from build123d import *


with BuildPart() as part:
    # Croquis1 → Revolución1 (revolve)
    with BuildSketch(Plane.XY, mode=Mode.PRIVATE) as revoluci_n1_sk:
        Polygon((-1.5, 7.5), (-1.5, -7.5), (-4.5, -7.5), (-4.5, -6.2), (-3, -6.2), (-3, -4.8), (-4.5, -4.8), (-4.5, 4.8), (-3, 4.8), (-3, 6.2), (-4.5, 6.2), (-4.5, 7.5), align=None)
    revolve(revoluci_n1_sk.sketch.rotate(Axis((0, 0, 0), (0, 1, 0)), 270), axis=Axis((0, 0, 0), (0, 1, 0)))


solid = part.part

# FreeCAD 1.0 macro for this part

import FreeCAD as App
import Part
import Sketcher
Q = App.Units.Quantity


def add_polygon(sketch, points):
    """Adds a closed chain of lines whose ends are joined by coincident constraints."""
    first, n = sketch.GeometryCount, len(points)
    for a, b in zip(points, points[1:] + points[:1]):
        sketch.addGeometry(Part.LineSegment(App.Vector(*a, 0), App.Vector(*b, 0)), False)
    for i in range(n):
        sketch.addConstraint(Sketcher.Constraint("Coincident", first + i, 2, first + (i + 1) % n, 1))

doc = App.newDocument("Part")
params = doc.addObject("Spreadsheet::Sheet", "Params")
for row, (alias, value) in enumerate([
    ("sketch1_width", "3 mm"),
    ("sketch1_height", "15 mm"),
    ("sketch1_width2", "1.5 mm"),
    ("sketch1_height2", "1.3 mm"),
    ("sketch1_height3", "1.4 mm"),
    ("revolution_angle", "360 deg"),
], start=1):
    params.set(f"A{row}", alias)
    params.set(f"B{row}", "=" + value)
    params.setAlias(f"B{row}", alias)

body = doc.addObject("PartDesign::Body", "Body")

sketch1 = doc.addObject("Sketcher::SketchObject", "Sketch")
body.addObject(sketch1)
sketch1.AttachmentSupport = (doc.XY_Plane, [""])
sketch1.MapMode = "FlatFace"
add_polygon(sketch1, [(-1.5, -7.5), (-1.5, 7.5), (-4.5, 7.5), (-4.5, 6.2), (-3, 6.2), (-3, 4.8), (-4.5, 4.8), (-4.5, -4.8), (-3, -4.8), (-3, -6.2), (-4.5, -6.2), (-4.5, -7.5)])
sketch1.addConstraint([
    Sketcher.Constraint("Vertical", 0),
    Sketcher.Constraint("Horizontal", 1),
    Sketcher.Constraint("Vertical", 2),
    Sketcher.Constraint("Horizontal", 3),
    Sketcher.Constraint("Vertical", 4),
    Sketcher.Constraint("Horizontal", 5),
    Sketcher.Constraint("Vertical", 6),
    Sketcher.Constraint("Horizontal", 7),
    Sketcher.Constraint("Vertical", 8),
    Sketcher.Constraint("Horizontal", 9),
    Sketcher.Constraint("Vertical", 10),
    Sketcher.Constraint("Horizontal", 11),
    Sketcher.Constraint("Symmetric", 4, 2, 7, 2, -1),
    Sketcher.Constraint("Symmetric", 2, 2, 9, 2, -1),
    Sketcher.Constraint("Vertical", 2, 2, 5, 2),
    Sketcher.Constraint("Equal", 2, 10),
    Sketcher.Constraint("DistanceX", 1, 2, 1, 1, Q("3 mm")),
    Sketcher.Constraint("DistanceY", 0, 1, 0, 2, Q("15 mm")),
    Sketcher.Constraint("DistanceX", 3, 1, 3, 2, Q("1.5 mm")),
    Sketcher.Constraint("DistanceY", 2, 2, 2, 1, Q("1.3 mm")),
    Sketcher.Constraint("DistanceY", 4, 2, 4, 1, Q("1.4 mm")),
    Sketcher.Constraint("DistanceX", 3, 2, -1, 1, Q("3 mm")),
])
sketch1.setExpression("Constraints[28]", "Params.sketch1_width")
sketch1.setExpression("Constraints[29]", "Params.sketch1_height")
sketch1.setExpression("Constraints[30]", "Params.sketch1_width2")
sketch1.setExpression("Constraints[31]", "Params.sketch1_height2")
sketch1.setExpression("Constraints[32]", "Params.sketch1_height3")
revolution = doc.addObject("PartDesign::Revolution", "Revolution")
body.addObject(revolution)
revolution.Profile = sketch1
revolution.ReferenceAxis = (sketch1, ["V_Axis"])
revolution.setExpression("Angle", "Params.revolution_angle")

doc.recompute()
